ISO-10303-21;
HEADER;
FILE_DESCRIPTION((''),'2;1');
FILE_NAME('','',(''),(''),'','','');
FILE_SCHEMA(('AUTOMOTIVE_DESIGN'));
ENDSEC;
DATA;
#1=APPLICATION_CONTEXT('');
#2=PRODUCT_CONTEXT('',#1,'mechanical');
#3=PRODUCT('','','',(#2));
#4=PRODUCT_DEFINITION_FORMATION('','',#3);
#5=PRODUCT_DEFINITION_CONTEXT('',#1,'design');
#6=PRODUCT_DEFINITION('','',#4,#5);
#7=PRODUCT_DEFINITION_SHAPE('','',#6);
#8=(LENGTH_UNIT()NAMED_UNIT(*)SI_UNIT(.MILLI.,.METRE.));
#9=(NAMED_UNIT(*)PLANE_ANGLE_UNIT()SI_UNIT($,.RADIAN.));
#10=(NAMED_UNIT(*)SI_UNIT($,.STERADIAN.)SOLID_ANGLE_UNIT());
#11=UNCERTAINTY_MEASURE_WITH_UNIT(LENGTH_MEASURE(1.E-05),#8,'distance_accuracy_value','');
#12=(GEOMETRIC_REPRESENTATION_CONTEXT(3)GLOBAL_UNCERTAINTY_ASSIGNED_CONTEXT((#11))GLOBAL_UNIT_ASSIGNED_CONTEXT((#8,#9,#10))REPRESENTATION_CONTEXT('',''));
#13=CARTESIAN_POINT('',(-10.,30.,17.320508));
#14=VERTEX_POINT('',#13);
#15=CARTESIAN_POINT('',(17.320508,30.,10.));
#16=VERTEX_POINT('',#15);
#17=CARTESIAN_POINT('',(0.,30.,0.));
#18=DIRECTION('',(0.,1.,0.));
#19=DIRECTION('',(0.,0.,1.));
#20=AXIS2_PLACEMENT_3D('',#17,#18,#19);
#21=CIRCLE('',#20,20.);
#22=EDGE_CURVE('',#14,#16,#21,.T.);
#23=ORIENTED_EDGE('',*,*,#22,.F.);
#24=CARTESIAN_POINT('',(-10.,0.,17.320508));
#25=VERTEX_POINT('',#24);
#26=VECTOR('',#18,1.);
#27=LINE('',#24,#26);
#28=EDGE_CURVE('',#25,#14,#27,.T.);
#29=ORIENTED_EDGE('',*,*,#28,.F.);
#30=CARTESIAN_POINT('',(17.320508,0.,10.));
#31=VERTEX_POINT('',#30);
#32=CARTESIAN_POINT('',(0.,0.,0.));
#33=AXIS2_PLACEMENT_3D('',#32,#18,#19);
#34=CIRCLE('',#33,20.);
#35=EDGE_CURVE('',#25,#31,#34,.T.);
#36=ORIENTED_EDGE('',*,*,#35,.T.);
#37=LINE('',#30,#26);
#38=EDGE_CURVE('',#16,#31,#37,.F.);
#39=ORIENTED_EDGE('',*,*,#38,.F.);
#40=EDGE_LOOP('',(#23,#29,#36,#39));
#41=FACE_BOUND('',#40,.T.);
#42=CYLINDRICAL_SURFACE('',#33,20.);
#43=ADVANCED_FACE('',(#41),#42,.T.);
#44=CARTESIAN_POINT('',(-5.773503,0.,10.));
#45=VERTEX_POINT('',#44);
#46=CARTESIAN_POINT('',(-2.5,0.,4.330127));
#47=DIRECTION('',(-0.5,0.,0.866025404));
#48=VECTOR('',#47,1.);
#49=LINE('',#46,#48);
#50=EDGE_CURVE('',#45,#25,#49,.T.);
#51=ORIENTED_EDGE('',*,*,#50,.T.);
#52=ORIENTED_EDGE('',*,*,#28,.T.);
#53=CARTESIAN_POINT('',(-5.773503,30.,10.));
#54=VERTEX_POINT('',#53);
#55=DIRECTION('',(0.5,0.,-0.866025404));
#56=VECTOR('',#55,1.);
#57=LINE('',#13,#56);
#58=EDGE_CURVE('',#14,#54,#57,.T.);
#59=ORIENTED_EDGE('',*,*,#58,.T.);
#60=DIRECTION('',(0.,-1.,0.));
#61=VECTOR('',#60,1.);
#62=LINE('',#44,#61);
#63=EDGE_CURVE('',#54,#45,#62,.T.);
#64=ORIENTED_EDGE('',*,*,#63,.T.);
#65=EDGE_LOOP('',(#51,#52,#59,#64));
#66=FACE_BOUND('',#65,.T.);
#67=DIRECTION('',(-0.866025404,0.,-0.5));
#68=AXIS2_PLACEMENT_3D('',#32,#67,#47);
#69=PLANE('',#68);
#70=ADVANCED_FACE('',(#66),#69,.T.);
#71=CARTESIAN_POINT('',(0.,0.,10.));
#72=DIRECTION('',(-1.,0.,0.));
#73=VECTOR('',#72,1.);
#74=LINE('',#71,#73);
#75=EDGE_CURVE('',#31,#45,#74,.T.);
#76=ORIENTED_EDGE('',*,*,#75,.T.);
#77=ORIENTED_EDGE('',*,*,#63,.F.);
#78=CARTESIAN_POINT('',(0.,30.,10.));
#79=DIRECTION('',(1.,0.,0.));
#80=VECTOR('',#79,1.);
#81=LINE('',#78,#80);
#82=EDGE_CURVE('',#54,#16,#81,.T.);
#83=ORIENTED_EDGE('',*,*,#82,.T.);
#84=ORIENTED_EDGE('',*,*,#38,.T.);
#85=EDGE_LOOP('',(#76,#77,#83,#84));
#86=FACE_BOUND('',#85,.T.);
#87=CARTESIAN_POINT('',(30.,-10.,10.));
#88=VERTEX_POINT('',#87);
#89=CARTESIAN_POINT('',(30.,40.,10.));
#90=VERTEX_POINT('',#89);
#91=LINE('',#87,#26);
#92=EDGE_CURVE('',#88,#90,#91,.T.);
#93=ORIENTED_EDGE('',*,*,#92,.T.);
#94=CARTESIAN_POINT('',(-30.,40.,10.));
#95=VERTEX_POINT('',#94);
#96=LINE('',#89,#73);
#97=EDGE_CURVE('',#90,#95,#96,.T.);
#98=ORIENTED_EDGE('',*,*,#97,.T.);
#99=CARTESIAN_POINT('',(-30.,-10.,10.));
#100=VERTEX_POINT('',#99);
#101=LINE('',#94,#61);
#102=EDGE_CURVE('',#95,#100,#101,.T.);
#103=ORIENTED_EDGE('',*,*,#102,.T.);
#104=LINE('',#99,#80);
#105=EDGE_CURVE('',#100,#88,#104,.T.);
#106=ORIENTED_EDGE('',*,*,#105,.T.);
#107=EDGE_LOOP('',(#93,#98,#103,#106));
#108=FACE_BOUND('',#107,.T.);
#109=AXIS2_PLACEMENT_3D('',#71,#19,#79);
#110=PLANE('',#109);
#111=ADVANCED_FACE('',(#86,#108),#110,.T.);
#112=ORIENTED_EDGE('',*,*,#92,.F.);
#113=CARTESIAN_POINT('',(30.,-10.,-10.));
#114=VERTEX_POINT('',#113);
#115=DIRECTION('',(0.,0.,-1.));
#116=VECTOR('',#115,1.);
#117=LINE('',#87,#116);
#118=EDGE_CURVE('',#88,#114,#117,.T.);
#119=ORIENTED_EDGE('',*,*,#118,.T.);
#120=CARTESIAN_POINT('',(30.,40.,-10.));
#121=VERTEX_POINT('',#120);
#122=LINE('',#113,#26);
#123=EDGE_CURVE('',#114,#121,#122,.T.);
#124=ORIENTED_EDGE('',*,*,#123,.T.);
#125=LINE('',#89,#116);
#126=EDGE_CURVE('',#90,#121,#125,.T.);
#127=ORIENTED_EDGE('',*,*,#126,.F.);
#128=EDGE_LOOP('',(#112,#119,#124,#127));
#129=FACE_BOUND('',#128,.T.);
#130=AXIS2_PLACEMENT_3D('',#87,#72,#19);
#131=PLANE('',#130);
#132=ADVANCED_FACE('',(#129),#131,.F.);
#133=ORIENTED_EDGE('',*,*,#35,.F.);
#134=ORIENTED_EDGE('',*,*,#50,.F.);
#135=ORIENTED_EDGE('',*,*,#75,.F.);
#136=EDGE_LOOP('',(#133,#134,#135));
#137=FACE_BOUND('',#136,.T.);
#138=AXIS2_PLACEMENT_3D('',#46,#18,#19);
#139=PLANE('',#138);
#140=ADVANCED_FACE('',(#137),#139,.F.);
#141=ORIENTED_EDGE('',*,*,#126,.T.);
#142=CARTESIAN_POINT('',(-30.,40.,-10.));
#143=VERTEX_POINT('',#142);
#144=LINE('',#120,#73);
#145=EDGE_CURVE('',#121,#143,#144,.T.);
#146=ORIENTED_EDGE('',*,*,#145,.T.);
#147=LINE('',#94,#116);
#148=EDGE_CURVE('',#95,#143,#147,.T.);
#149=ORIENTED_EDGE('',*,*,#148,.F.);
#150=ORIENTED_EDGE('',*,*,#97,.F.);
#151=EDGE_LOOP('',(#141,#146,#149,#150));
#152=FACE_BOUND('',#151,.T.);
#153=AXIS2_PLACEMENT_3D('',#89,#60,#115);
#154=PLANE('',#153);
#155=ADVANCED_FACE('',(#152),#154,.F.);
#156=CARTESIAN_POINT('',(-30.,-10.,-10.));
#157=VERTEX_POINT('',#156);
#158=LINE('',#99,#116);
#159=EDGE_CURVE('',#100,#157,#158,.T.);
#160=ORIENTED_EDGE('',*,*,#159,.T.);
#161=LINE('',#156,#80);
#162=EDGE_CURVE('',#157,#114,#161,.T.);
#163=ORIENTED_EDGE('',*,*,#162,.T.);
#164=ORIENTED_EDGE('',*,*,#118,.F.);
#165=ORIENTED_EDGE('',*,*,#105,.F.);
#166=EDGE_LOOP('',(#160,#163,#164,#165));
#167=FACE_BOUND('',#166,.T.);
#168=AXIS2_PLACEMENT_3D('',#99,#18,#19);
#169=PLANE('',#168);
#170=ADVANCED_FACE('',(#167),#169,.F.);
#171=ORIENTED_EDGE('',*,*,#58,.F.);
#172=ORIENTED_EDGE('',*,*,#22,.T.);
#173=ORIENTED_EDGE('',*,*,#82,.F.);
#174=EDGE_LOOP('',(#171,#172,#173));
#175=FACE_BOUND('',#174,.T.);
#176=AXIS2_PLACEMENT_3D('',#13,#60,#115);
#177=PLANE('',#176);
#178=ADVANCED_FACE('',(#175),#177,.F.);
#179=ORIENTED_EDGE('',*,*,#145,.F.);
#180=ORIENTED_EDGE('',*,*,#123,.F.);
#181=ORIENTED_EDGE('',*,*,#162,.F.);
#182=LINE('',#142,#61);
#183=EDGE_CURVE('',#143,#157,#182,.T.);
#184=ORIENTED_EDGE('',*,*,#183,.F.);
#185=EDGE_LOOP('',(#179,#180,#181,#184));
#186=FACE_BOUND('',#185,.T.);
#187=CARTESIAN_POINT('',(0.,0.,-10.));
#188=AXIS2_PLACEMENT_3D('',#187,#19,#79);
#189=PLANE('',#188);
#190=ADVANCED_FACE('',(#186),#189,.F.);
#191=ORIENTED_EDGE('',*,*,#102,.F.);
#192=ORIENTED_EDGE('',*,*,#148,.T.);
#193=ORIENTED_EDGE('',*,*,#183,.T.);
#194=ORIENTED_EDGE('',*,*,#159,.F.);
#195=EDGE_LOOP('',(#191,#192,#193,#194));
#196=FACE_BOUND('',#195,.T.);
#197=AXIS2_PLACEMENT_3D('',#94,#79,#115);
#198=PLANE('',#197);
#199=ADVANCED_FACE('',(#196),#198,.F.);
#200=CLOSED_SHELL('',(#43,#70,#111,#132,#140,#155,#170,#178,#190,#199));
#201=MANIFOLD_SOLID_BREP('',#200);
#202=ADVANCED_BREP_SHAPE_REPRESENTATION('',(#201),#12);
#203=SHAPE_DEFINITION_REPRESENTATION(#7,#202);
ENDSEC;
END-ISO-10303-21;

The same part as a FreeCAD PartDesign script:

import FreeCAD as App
import Part
import Sketcher
from FreeCAD import Vector
Q = App.Units.Quantity


def add_polygon(sketch, points):
    """Adds a closed chain of lines whose ends are joined by coincident constraints."""
    first, n = sketch.GeometryCount, len(points)
    for a, b in zip(points, points[1:] + points[:1]):
        sketch.addGeometry(Part.LineSegment(App.Vector(*a, 0), App.Vector(*b, 0)), False)
    for i in range(n):
        sketch.addConstraint(Sketcher.Constraint("Coincident", first + i, 2, first + (i + 1) % n, 1))

doc = App.newDocument("Part")
params = doc.addObject("Spreadsheet::Sheet", "Params")
for row, (alias, value) in enumerate([
    ("sketch1_width", "60 mm"),
    ("sketch1_height", "50 mm"),
    ("pad1_length", "20 mm"),
    ("sketch2_width", "15 mm"),
    ("sketch2_height", "30 mm"),
    ("revolution_angle", "120 deg"),
], start=1):
    params.set(f"A{row}", alias)
    params.set(f"B{row}", "=" + value)
    params.setAlias(f"B{row}", alias)

body = doc.addObject("PartDesign::Body", "Body")

sketch1 = body.newObject("Sketcher::SketchObject", "Sketch")
sketch1.AttachmentSupport = (doc.getObject("XY_Plane"), [""])
sketch1.MapMode = "FlatFace"
add_polygon(sketch1, [(-30, 40), (-30, -10), (30, -10), (30, 40)])
sketch1.addConstraint(Sketcher.Constraint("Vertical", 0))
sketch1.addConstraint(Sketcher.Constraint("Horizontal", 1))
sketch1.addConstraint(Sketcher.Constraint("Vertical", 2))
sketch1.addConstraint(Sketcher.Constraint("Horizontal", 3))
sketch1.addConstraint(Sketcher.Constraint("DistanceX", 1, 1, 1, 2, Q("60 mm")))
sketch1.addConstraint(Sketcher.Constraint("DistanceY", 0, 2, 0, 1, Q("50 mm")))
sketch1.addConstraint(Sketcher.Constraint("DistanceX", 0, 2, -1, 1, Q("30 mm")))
sketch1.addConstraint(Sketcher.Constraint("DistanceY", 0, 2, -1, 1, Q("10 mm")))
sketch1.setExpression("Constraints[8]", "Params.sketch1_width")
sketch1.setExpression("Constraints[9]", "Params.sketch1_height")
pad1 = body.newObject("PartDesign::Pad", "Pad")
pad1.Profile = sketch1
pad1.setExpression("Length", "Params.pad1_length")
pad1.Midplane = True

sketch2 = body.newObject("Sketcher::SketchObject", "Sketch001")
sketch2.AttachmentSupport = (doc.getObject("XY_Plane"), [""])
sketch2.MapMode = "FlatFace"
add_polygon(sketch2, [(5, 30), (5, 0), (20, 0), (20, 30)])
sketch2.addConstraint(Sketcher.Constraint("Vertical", 0))
sketch2.addConstraint(Sketcher.Constraint("Horizontal", 1))
sketch2.addConstraint(Sketcher.Constraint("Vertical", 2))
sketch2.addConstraint(Sketcher.Constraint("Horizontal", 3))
sketch2.addConstraint(Sketcher.Constraint("PointOnObject", 0, 2, -1))
sketch2.addConstraint(Sketcher.Constraint("DistanceX", 1, 1, 1, 2, Q("15 mm")))
sketch2.addConstraint(Sketcher.Constraint("DistanceY", 0, 2, 0, 1, Q("30 mm")))
sketch2.addConstraint(Sketcher.Constraint("DistanceX", -1, 1, 0, 2, Q("5 mm")))
sketch2.setExpression("Constraints[9]", "Params.sketch2_width")
sketch2.setExpression("Constraints[10]", "Params.sketch2_height")
revolution = body.newObject("PartDesign::Revolution", "Revolution")
revolution.Profile = sketch2
revolution.ReferenceAxis = (sketch2, ["V_Axis"])
revolution.setExpression("Angle", "Params.revolution_angle")
revolution.Reversed = True

doc.recompute()
